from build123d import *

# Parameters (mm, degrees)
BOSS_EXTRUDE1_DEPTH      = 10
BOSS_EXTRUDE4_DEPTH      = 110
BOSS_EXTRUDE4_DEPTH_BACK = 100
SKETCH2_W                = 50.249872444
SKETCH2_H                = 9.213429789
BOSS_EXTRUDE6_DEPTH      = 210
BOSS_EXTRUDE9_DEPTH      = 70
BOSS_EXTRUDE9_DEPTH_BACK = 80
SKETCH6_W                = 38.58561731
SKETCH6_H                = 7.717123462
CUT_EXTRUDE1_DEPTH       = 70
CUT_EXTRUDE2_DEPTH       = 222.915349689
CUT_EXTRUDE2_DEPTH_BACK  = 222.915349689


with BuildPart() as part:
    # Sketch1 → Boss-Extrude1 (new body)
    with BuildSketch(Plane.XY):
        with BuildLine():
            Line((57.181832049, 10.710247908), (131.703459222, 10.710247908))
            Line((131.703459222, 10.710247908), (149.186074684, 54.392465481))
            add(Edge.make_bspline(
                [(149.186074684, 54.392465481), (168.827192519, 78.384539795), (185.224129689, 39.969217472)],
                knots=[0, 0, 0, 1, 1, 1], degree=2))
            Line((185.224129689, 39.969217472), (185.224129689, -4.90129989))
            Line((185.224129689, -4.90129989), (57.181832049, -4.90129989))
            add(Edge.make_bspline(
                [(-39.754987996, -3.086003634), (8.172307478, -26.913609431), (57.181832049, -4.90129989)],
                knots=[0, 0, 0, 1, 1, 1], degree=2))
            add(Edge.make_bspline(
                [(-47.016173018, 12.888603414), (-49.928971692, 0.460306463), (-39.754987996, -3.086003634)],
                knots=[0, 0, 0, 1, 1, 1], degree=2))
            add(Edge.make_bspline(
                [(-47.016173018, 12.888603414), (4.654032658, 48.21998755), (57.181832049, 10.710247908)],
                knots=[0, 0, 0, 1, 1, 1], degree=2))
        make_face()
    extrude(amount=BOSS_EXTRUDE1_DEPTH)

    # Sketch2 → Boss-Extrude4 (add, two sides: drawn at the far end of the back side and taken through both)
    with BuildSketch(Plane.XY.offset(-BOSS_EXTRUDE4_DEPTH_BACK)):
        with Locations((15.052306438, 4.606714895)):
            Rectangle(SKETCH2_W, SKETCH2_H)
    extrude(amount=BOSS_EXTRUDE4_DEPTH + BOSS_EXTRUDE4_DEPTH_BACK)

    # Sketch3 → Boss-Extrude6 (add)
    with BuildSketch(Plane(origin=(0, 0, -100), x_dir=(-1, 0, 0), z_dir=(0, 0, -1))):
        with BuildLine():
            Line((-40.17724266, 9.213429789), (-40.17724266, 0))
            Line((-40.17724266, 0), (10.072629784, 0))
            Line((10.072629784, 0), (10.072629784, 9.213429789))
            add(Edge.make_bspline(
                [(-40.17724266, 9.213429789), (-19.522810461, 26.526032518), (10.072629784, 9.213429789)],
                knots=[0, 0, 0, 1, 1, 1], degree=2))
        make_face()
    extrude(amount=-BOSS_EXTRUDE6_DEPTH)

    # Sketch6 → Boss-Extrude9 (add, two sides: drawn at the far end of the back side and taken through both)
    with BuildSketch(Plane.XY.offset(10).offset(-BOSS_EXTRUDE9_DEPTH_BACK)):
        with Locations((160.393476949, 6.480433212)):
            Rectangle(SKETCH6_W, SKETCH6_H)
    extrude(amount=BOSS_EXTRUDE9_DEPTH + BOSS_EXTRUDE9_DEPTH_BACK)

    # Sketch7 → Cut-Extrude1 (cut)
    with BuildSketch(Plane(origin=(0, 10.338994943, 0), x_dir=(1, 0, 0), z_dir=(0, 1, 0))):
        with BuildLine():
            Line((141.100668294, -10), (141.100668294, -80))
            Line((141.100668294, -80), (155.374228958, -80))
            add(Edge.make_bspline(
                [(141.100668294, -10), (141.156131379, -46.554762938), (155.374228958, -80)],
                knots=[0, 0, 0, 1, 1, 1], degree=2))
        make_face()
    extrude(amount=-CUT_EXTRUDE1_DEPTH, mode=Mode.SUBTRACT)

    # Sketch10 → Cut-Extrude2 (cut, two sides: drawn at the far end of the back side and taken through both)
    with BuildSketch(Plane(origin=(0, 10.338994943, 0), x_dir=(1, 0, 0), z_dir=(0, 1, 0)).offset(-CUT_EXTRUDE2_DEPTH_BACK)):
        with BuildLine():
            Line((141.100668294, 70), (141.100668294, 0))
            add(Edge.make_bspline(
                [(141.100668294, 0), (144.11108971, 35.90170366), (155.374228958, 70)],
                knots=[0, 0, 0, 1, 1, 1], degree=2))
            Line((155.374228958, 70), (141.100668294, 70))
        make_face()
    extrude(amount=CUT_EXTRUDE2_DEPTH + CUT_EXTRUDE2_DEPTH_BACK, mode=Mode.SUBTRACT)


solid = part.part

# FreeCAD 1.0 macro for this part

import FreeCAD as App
import Part
import Sketcher


def add_polygon(sketch, points):
    """Adds a closed chain of lines whose ends are joined by coincident constraints."""
    first, n = sketch.GeometryCount, len(points)
    for a, b in zip(points, points[1:] + points[:1]):
        sketch.addGeometry(Part.LineSegment(App.Vector(*a, 0), App.Vector(*b, 0)), False)
    for i in range(n):
        sketch.addConstraint(Sketcher.Constraint("Coincident", first + i, 2, first + (i + 1) % n, 1))

doc = App.newDocument("Part")
body = doc.addObject("PartDesign::Body", "Body")

sketch1 = doc.addObject("Sketcher::SketchObject", "Sketch")
body.addObject(sketch1)
sketch1.AttachmentSupport = (doc.XY_Plane, [""])
sketch1.MapMode = "FlatFace"
sketch1.addGeometry([
    Part.LineSegment(App.Vector(131.703459, 10.710248, 0), App.Vector(57.181832, 10.710248, 0)),
    Part.BSplineCurve([App.Vector(-47.016173, 12.888603, 0), App.Vector(4.654033, 48.219988, 0), App.Vector(57.181832, 10.710248, 0)], [3, 3], [0, 1], False, 2, [1, 1, 1], False),
    Part.BSplineCurve([App.Vector(-47.016173, 12.888603, 0), App.Vector(-49.928972, 0.460306, 0), App.Vector(-39.754988, -3.086004, 0)], [3, 3], [0, 1], False, 2, [1, 1, 1], False),
    Part.BSplineCurve([App.Vector(-39.754988, -3.086004, 0), App.Vector(8.172307, -26.913609, 0), App.Vector(57.181832, -4.9013, 0)], [3, 3], [0, 1], False, 2, [1, 1, 1], False),
    Part.LineSegment(App.Vector(57.181832, -4.9013, 0), App.Vector(185.22413, -4.9013, 0)),
    Part.LineSegment(App.Vector(185.22413, -4.9013, 0), App.Vector(185.22413, 39.969217, 0)),
    Part.BSplineCurve([App.Vector(149.186075, 54.392465, 0), App.Vector(168.827193, 78.38454, 0), App.Vector(185.22413, 39.969217, 0)], [3, 3], [0, 1], False, 2, [1, 1, 1], False),
    Part.LineSegment(App.Vector(149.186075, 54.392465, 0), App.Vector(131.703459, 10.710248, 0)),
], False)
sketch1.addConstraint([
    Sketcher.Constraint("Block", 1),
    Sketcher.Constraint("Block", 2),
    Sketcher.Constraint("Block", 3),
    Sketcher.Constraint("Block", 6),
    Sketcher.Constraint("Coincident", 0, 2, 1, 2),
    Sketcher.Constraint("Coincident", 3, 2, 4, 1),
    Sketcher.Constraint("Coincident", 4, 2, 5, 1),
    Sketcher.Constraint("Coincident", 5, 2, 6, 2),
    Sketcher.Constraint("Coincident", 6, 1, 7, 1),
    Sketcher.Constraint("Coincident", 7, 2, 0, 1),
    Sketcher.Constraint("Horizontal", 0),
    Sketcher.Constraint("Horizontal", 4),
    Sketcher.Constraint("Vertical", 5),
    Sketcher.Constraint("DistanceX", 0, 2, 0, 1, 74.521627),
])
pad1 = doc.addObject("PartDesign::Pad", "Pad")
body.addObject(pad1)
pad1.Profile = sketch1
pad1.Length = 10

sketch2 = doc.addObject("Sketcher::SketchObject", "Sketch001")
body.addObject(sketch2)
sketch2.AttachmentSupport = (doc.XY_Plane, [""])
sketch2.MapMode = "FlatFace"
add_polygon(sketch2, [(-10.07263, 9.21343), (-10.07263, 0), (40.177243, 0), (40.177243, 9.21343)])
sketch2.addConstraint([
    Sketcher.Constraint("Vertical", 0),
    Sketcher.Constraint("Horizontal", 1),
    Sketcher.Constraint("Vertical", 2),
    Sketcher.Constraint("Horizontal", 3),
    Sketcher.Constraint("PointOnObject", 0, 2, -1),
    Sketcher.Constraint("DistanceY", 0, 2, 0, 1, 9.21343),
    Sketcher.Constraint("DistanceX", 1, 1, 1, 2, 50.249872),
    Sketcher.Constraint("DistanceX", 0, 2, -1, 1, 10.07263),
])
pad2 = doc.addObject("PartDesign::Pad", "Pad001")
body.addObject(pad2)
pad2.Profile = sketch2
pad2.Type = "TwoLengths"
pad2.Length = 110
pad2.Length2 = 100

sketch3 = doc.addObject("Sketcher::SketchObject", "Sketch002")
body.addObject(sketch3)
sketch3.AttachmentSupport = (doc.XY_Plane, [""])
sketch3.MapMode = "FlatFace"
sketch3.AttachmentOffset = App.Placement(App.Vector(0, 0, -100), App.Rotation())
sketch3.addGeometry([
    Part.LineSegment(App.Vector(40.177243, 9.21343, 0), App.Vector(40.177243, 0, 0)),
    Part.LineSegment(App.Vector(40.177243, 0, 0), App.Vector(-10.07263, 0, 0)),
    Part.LineSegment(App.Vector(-10.07263, 0, 0), App.Vector(-10.07263, 9.21343, 0)),
    Part.BSplineCurve([App.Vector(40.177243, 9.21343, 0), App.Vector(19.52281, 26.526033, 0), App.Vector(-10.07263, 9.21343, 0)], [3, 3], [0, 1], False, 2, [1, 1, 1], False),
], False)
sketch3.addConstraint([
    Sketcher.Constraint("Block", 3),
    Sketcher.Constraint("Coincident", 0, 2, 1, 1),
    Sketcher.Constraint("Coincident", 1, 2, 2, 1),
    Sketcher.Constraint("Coincident", 2, 2, 3, 2),
    Sketcher.Constraint("Coincident", 3, 1, 0, 1),
    Sketcher.Constraint("Vertical", 0),
    Sketcher.Constraint("Horizontal", 1),
    Sketcher.Constraint("Vertical", 2),
    Sketcher.Constraint("PointOnObject", 0, 2, -1),
])
pad3 = doc.addObject("PartDesign::Pad", "Pad002")
body.addObject(pad3)
pad3.Profile = sketch3
pad3.Length = 210

sketch4 = doc.addObject("Sketcher::SketchObject", "Sketch003")
body.addObject(sketch4)
sketch4.AttachmentSupport = (doc.XY_Plane, [""])
sketch4.MapMode = "FlatFace"
sketch4.AttachmentOffset = App.Placement(App.Vector(0, 0, 10), App.Rotation())
add_polygon(sketch4, [(141.100668, 10.338995), (141.100668, 2.621871), (179.686286, 2.621871), (179.686286, 10.338995)])
sketch4.addConstraint([
    Sketcher.Constraint("Vertical", 0),
    Sketcher.Constraint("Horizontal", 1),
    Sketcher.Constraint("Vertical", 2),
    Sketcher.Constraint("Horizontal", 3),
    Sketcher.Constraint("DistanceX", 1, 1, 1, 2, 38.585617),
    Sketcher.Constraint("DistanceY", 0, 2, 0, 1, 7.717123),
    Sketcher.Constraint("DistanceX", -1, 1, 0, 2, 141.100668),
    Sketcher.Constraint("DistanceY", -1, 1, 0, 2, 2.621871),
])
pad4 = doc.addObject("PartDesign::Pad", "Pad003")
body.addObject(pad4)
pad4.Profile = sketch4
pad4.Type = "TwoLengths"
pad4.Length = 70
pad4.Length2 = 80

sketch5 = doc.addObject("Sketcher::SketchObject", "Sketch004")
body.addObject(sketch5)
sketch5.AttachmentSupport = (doc.XZ_Plane, [""])
sketch5.MapMode = "FlatFace"
sketch5.AttachmentOffset = App.Placement(App.Vector(0, 0, -10.338995), App.Rotation())
sketch5.addGeometry([
    Part.LineSegment(App.Vector(141.100668, 10, 0), App.Vector(141.100668, 80, 0)),
    Part.LineSegment(App.Vector(141.100668, 80, 0), App.Vector(155.374229, 80, 0)),
    Part.BSplineCurve([App.Vector(141.100668, 10, 0), App.Vector(141.156131, 46.554763, 0), App.Vector(155.374229, 80, 0)], [3, 3], [0, 1], False, 2, [1, 1, 1], False),
], False)
sketch5.addConstraint([
    Sketcher.Constraint("Block", 2),
    Sketcher.Constraint("Coincident", 0, 2, 1, 1),
    Sketcher.Constraint("Coincident", 1, 2, 2, 2),
    Sketcher.Constraint("Coincident", 2, 1, 0, 1),
    Sketcher.Constraint("Vertical", 0),
    Sketcher.Constraint("Horizontal", 1),
])
pocket1 = doc.addObject("PartDesign::Pocket", "Pocket")
body.addObject(pocket1)
pocket1.Profile = sketch5
pocket1.Length = 70
pocket1.Reversed = True

sketch6 = doc.addObject("Sketcher::SketchObject", "Sketch005")
body.addObject(sketch6)
sketch6.AttachmentSupport = (doc.XZ_Plane, [""])
sketch6.MapMode = "FlatFace"
sketch6.AttachmentOffset = App.Placement(App.Vector(0, 0, -10.338995), App.Rotation())
sketch6.addGeometry([
    Part.LineSegment(App.Vector(141.100668, -70, 0), App.Vector(141.100668, 0, 0)),
    Part.BSplineCurve([App.Vector(141.100668, 0, 0), App.Vector(144.11109, -35.901704, 0), App.Vector(155.374229, -70, 0)], [3, 3], [0, 1], False, 2, [1, 1, 1], False),
    Part.LineSegment(App.Vector(155.374229, -70, 0), App.Vector(141.100668, -70, 0)),
], False)
sketch6.addConstraint([
    Sketcher.Constraint("Block", 1),
    Sketcher.Constraint("Coincident", 0, 2, 1, 1),
    Sketcher.Constraint("Coincident", 1, 2, 2, 1),
    Sketcher.Constraint("Coincident", 2, 2, 0, 1),
    Sketcher.Constraint("Vertical", 0),
    Sketcher.Constraint("Horizontal", 2),
])
pocket2 = doc.addObject("PartDesign::Pocket", "Pocket001")
body.addObject(pocket2)
pocket2.Profile = sketch6
pocket2.Type = "ThroughAll"
pocket2.Midplane = True

doc.recompute()
